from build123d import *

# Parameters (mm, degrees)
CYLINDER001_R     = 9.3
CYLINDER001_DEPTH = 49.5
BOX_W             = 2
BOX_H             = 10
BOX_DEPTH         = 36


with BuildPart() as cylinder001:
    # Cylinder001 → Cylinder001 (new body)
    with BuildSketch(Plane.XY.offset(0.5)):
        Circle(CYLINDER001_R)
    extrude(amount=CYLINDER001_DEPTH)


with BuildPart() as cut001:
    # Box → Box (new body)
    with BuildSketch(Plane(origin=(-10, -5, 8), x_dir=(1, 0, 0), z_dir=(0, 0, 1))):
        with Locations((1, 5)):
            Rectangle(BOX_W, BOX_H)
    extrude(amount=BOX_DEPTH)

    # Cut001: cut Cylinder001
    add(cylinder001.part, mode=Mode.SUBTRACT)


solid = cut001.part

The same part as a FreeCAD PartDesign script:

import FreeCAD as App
import Part
import Sketcher

V = App.Vector


def add_polygon(sketch, points):
    """Adds a closed chain of lines whose ends are joined by coincident constraints."""
    first, n = sketch.GeometryCount, len(points)
    for a, b in zip(points, points[1:] + points[:1]):
        sketch.addGeometry(Part.LineSegment(App.Vector(*a, 0), App.Vector(*b, 0)), False)
    for i in range(n):
        sketch.addConstraint(Sketcher.Constraint("Coincident", first + i, 2, first + (i + 1) % n, 1))

doc = App.newDocument("Part")
body = doc.addObject("PartDesign::Body", "Body")

sketch1 = body.newObject("Sketcher::SketchObject", "Sketch")
sketch1.AttachmentSupport = (doc.getObject("XY_Plane"), [""])
sketch1.MapMode = "FlatFace"
sketch1.AttachmentOffset = App.Placement(V(0, 0, 0.5), App.Rotation())
sketch1.addGeometry(Part.Circle(V(0, 0, 0), V(0, 0, 1), 9), False)
sketch1.addConstraint([
    Sketcher.Constraint("Coincident", 0, 3, -1, 1),
    Sketcher.Constraint("Diameter", 0, 18.6),
])
pad1 = body.newObject("PartDesign::Pad", "Pad")
pad1.Profile = sketch1
pad1.Length = 49.5
body2 = doc.addObject("PartDesign::Body", "Body001")

sketch2 = body2.newObject("Sketcher::SketchObject", "Sketch001")
sketch2.AttachmentSupport = (doc.getObject("XY_Plane001"), [""])
sketch2.MapMode = "FlatFace"
sketch2.AttachmentOffset = App.Placement(V(0, 0, 8), App.Rotation())
add_polygon(sketch2, [(-10, 5), (-10, -5), (-8, -5), (-8, 5)])
sketch2.addConstraint([
    Sketcher.Constraint("Vertical", 0),
    Sketcher.Constraint("Horizontal", 1),
    Sketcher.Constraint("Vertical", 2),
    Sketcher.Constraint("Horizontal", 3),
    Sketcher.Constraint("DistanceX", 1, 1, 1, 2, 2.0),
    Sketcher.Constraint("DistanceY", 0, 2, 0, 1, 10.0),
    Sketcher.Constraint("DistanceX", 0, 2, -1, 1, 10.0),
    Sketcher.Constraint("DistanceY", 0, 2, -1, 1, 5.0),
])
pad2 = body2.newObject("PartDesign::Pad", "Pad001")
pad2.Profile = sketch2
pad2.Length = 36
doc.recompute()

boolean = body2.newObject("PartDesign::Boolean", "Boolean")
boolean.Type = "Cut"
boolean.addObjects([body])

doc.recompute()
